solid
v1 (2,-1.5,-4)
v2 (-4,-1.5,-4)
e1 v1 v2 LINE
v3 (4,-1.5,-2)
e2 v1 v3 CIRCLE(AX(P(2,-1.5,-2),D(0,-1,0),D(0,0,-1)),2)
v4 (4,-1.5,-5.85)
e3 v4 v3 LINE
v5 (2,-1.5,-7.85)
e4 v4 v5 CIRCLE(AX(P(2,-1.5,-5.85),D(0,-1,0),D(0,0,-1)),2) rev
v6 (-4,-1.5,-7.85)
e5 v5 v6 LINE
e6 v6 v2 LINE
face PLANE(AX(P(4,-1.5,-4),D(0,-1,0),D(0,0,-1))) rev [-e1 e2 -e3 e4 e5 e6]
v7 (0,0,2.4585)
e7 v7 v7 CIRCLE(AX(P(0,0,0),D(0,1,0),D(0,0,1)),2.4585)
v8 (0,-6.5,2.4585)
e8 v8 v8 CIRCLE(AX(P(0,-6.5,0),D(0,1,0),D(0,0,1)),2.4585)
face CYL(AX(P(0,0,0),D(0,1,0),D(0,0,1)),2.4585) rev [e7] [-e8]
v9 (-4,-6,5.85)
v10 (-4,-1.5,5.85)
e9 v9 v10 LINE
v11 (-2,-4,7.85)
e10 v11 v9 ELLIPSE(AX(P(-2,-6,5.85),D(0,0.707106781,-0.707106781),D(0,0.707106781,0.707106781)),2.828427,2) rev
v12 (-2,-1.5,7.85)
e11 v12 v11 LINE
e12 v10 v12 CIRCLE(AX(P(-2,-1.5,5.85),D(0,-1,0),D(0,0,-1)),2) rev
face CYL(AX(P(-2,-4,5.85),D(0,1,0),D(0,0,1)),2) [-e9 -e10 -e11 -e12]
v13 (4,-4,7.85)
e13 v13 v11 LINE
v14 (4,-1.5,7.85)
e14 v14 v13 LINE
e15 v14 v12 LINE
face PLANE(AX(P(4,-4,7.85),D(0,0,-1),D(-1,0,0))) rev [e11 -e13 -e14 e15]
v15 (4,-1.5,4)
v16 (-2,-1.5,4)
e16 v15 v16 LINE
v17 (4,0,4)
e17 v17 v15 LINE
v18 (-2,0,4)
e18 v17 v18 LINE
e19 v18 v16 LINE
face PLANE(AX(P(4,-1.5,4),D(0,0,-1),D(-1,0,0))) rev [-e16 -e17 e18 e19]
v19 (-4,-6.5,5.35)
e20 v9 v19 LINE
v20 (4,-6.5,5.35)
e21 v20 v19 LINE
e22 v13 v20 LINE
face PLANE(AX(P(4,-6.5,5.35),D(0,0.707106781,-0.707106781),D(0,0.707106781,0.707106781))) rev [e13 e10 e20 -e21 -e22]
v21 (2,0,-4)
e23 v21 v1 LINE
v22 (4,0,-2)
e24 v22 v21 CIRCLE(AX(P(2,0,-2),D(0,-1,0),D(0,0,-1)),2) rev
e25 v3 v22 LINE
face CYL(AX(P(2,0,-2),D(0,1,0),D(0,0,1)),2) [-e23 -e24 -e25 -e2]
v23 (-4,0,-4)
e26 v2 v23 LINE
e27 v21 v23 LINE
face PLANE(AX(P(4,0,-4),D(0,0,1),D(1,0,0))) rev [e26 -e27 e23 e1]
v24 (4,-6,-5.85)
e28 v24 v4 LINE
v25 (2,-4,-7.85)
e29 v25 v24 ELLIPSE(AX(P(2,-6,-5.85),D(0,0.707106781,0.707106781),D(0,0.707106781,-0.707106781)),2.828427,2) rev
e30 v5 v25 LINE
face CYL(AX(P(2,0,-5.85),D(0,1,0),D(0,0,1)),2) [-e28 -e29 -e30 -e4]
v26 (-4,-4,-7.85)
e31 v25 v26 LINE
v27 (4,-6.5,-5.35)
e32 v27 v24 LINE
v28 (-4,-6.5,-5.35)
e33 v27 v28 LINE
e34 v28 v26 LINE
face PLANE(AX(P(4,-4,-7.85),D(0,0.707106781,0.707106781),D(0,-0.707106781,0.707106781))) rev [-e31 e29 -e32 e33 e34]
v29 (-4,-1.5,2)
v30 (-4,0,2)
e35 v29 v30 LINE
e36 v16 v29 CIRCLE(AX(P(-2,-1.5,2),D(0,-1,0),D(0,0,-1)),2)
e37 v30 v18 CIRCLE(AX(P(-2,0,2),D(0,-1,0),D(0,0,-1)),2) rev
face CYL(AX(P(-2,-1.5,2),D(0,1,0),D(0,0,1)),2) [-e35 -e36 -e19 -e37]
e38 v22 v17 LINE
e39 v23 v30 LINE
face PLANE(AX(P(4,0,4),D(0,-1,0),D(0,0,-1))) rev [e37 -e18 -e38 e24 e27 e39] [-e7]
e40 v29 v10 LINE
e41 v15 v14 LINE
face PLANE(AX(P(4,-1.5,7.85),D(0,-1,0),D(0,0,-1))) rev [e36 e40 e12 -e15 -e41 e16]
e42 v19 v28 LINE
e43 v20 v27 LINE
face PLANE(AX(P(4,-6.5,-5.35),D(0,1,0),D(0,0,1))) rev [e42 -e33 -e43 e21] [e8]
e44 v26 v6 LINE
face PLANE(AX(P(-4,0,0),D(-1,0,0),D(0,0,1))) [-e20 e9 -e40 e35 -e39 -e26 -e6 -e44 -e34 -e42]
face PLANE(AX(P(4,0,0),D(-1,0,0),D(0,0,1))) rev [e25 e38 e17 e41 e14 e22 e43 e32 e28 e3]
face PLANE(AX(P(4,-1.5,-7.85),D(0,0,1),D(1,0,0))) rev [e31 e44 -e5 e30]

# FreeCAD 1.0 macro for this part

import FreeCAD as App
import Part
import Sketcher
Q = App.Units.Quantity


def edges_at(feature, points):
    """Names of the edges that pass closest to the given points."""
    edges = feature.Shape.Edges
    near = lambda p: min(range(len(edges)), key=lambda i: edges[i].distToShape(Part.Vertex(*p))[0])
    return sorted({f"Edge{near(p) + 1}" for p in points})


def add_polygon(sketch, points):
    """Adds a closed chain of lines whose ends are joined by coincident constraints."""
    first, n = sketch.GeometryCount, len(points)
    for a, b in zip(points, points[1:] + points[:1]):
        sketch.addGeometry(Part.LineSegment(App.Vector(*a, 0), App.Vector(*b, 0)), False)
    for i in range(n):
        sketch.addConstraint(Sketcher.Constraint("Coincident", first + i, 2, first + (i + 1) % n, 1))

doc = App.newDocument("Part")
params = doc.addObject("Spreadsheet::Sheet", "Params")
for row, (alias, value) in enumerate([
    ("sketch1_height", "8 mm"),
    ("sketch1_width", "1.5 mm"),
    ("sketch1_width2", "2.5 mm"),
    ("sketch1_height2", "10.7 mm"),
    ("pad1_length", "8 mm"),
    ("fillet_radius", "2 mm"),
    ("hole_diameter", "4.917 mm"),
], start=1):
    params.set(f"A{row}", alias)
    params.set(f"B{row}", "=" + value)
    params.setAlias(f"B{row}", alias)

body = doc.addObject("PartDesign::Body", "Body")

# Sketch on YZ plane
sketch1 = body.newObject("Sketcher::SketchObject", "Sketch")
sketch1.AttachmentSupport = (doc.getObject("YZ_Plane"), [""])
sketch1.MapMode = "FlatFace"
add_polygon(sketch1, [(0, -4), (0, 4), (-1.5, 4), (-1.5, 7.85), (-4, 7.85), (-6.5, 5.35), (-6.5, -5.35), (-4, -7.85), (-1.5, -7.85), (-1.5, -4)])  # lines 0-9
sketch1.addConstraint([
    Sketcher.Constraint("Vertical", 0),
    Sketcher.Constraint("Horizontal", 1),
    Sketcher.Constraint("Vertical", 2),
    Sketcher.Constraint("Horizontal", 3),
    Sketcher.Constraint("Vertical", 5),
    Sketcher.Constraint("Horizontal", 7),
    Sketcher.Constraint("Vertical", 8),
    Sketcher.Constraint("Horizontal", 9),
    Sketcher.Constraint("Symmetric", 0, 2, 9, 2, -1, 1),
    Sketcher.Constraint("Symmetric", 3, 2, 6, 2, -1),
    Sketcher.Constraint("Perpendicular", 4, 6),
    Sketcher.Constraint("Vertical", 2, 2, 7, 2),
    Sketcher.Constraint("Equal", 4, 6),
    Sketcher.Constraint("DistanceY", 0, 1, 0, 2, Q("8 mm")),
    Sketcher.Constraint("DistanceX", 1, 2, 1, 1, Q("1.5 mm")),
    Sketcher.Constraint("DistanceX", 3, 2, 3, 1, Q("2.5 mm")),
    Sketcher.Constraint("DistanceY", 5, 2, 5, 1, Q("10.7 mm")),
    Sketcher.Constraint("DistanceX", 4, 2, 1, 2, Q("5 mm")),
])
sketch1.setExpression("Constraints[23]", "Params.sketch1_height")
sketch1.setExpression("Constraints[24]", "Params.sketch1_width")
sketch1.setExpression("Constraints[25]", "Params.sketch1_width2")
sketch1.setExpression("Constraints[26]", "Params.sketch1_height2")
pad1 = body.newObject("PartDesign::Pad", "Pad")
pad1.Profile = sketch1
pad1.setExpression("Length", "Params.pad1_length")
pad1.Midplane = True
doc.recompute()

fillet = body.newObject("PartDesign::Fillet", "Fillet")
fillet.Base = (pad1, edges_at(pad1, [
    (-4, -2.75, 7.85),
    (-4, -0.75, 4),
    (4, -2.75, -7.85),
    (4, -0.75, -4),
]))
fillet.setExpression("Radius", "Params.fillet_radius")

# Sketch on XZ plane
sketch2 = body.newObject("Sketcher::SketchObject", "Sketch001")
sketch2.AttachmentSupport = (doc.getObject("XZ_Plane"), [""])
sketch2.MapMode = "FlatFace"
sketch2.addGeometry(Part.Circle(App.Vector(0, 0, 0), App.Vector(0, 0, 1), 2.4585), False)
sketch2.addConstraint([
    Sketcher.Constraint("Coincident", 0, 3, -1, 1),
    Sketcher.Constraint("Diameter", 0, Q("4.917 mm")),
])
doc.recompute()
hole = body.newObject("PartDesign::Hole", "Hole")
hole.Profile = sketch2
hole.ThreadType = "None"
hole.setExpression("Diameter", "Params.hole_diameter")
hole.DepthType = "ThroughAll"
hole.Reversed = True

doc.recompute()
